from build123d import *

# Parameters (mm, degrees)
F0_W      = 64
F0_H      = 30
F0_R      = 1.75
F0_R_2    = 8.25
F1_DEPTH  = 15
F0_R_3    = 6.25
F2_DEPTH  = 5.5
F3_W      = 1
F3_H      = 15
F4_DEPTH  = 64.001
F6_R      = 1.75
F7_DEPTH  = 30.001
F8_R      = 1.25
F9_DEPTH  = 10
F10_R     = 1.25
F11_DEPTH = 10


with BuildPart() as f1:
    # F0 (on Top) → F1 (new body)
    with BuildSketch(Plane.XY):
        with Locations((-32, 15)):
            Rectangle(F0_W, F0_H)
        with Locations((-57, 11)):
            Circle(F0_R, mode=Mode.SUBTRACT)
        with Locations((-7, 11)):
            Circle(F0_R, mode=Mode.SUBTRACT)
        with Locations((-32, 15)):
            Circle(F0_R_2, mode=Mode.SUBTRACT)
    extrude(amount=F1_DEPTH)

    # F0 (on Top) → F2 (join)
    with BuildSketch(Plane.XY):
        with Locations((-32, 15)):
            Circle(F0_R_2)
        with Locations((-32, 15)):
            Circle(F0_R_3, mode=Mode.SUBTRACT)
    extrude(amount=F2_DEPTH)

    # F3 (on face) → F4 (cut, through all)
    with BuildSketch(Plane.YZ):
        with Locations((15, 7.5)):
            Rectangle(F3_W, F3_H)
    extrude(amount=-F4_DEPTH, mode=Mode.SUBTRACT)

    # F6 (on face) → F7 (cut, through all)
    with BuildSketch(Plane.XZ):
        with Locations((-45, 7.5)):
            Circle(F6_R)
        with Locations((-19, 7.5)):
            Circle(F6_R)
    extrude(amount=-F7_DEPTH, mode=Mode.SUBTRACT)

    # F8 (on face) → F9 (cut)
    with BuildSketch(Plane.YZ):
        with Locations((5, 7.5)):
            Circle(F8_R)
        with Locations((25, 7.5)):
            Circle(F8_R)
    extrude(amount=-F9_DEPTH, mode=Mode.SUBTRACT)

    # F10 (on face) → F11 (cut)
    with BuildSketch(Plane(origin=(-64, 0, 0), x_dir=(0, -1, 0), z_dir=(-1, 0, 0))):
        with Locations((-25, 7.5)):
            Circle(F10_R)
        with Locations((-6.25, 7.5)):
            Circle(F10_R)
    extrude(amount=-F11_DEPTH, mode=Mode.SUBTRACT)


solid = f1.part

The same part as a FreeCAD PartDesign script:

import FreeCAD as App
import Part
import Sketcher

V = App.Vector


def add_polygon(sketch, points):
    """Adds a closed chain of lines whose ends are joined by coincident constraints."""
    first, n = sketch.GeometryCount, len(points)
    for a, b in zip(points, points[1:] + points[:1]):
        sketch.addGeometry(Part.LineSegment(App.Vector(*a, 0), App.Vector(*b, 0)), False)
    for i in range(n):
        sketch.addConstraint(Sketcher.Constraint("Coincident", first + i, 2, first + (i + 1) % n, 1))

doc = App.newDocument("Part")
body = doc.addObject("PartDesign::Body", "Body")
body.AllowCompound = True

# Sketch on XY plane
sketch1 = body.newObject("Sketcher::SketchObject", "Sketch")
sketch1.AttachmentSupport = (doc.getObject("XY_Plane"), [""])
sketch1.MapMode = "FlatFace"
add_polygon(sketch1, [(-64, 30), (-64, 0), (0, 0), (0, 30)])  # lines 0-3
sketch1.addGeometry(Part.Circle(V(-57, 11, 0), V(0, 0, 1), 1.8), False)  # 4
sketch1.addGeometry(Part.Circle(V(-7, 11, 0), V(0, 0, 1), 1.8), False)  # 5
sketch1.addGeometry(Part.Circle(V(-32, 15, 0), V(0, 0, 1), 8.2), False)  # 6
sketch1.addConstraint(Sketcher.Constraint("Vertical", 0))
sketch1.addConstraint(Sketcher.Constraint("Horizontal", 1))
sketch1.addConstraint(Sketcher.Constraint("Vertical", 2))
sketch1.addConstraint(Sketcher.Constraint("Horizontal", 3))
sketch1.addConstraint(Sketcher.Constraint("Coincident", 1, 2, -1, 1))
sketch1.addConstraint(Sketcher.Constraint("Equal", 4, 5))
sketch1.addConstraint(Sketcher.Constraint("Horizontal", 4, 3, 5, 3))
sketch1.addConstraint(Sketcher.Constraint("Diameter", 4, 3.5))
sketch1.addConstraint(Sketcher.Constraint("Diameter", 6, 16.5))
sketch1.addConstraint(Sketcher.Constraint("DistanceX", 1, 1, 1, 2, 64.0))
sketch1.addConstraint(Sketcher.Constraint("DistanceY", 0, 2, 0, 1, 30.0))
sketch1.addConstraint(Sketcher.Constraint("DistanceX", 4, 3, -1, 1, 57.0))
sketch1.addConstraint(Sketcher.Constraint("DistanceY", -1, 1, 4, 3, 11.0))
sketch1.addConstraint(Sketcher.Constraint("DistanceX", 5, 3, -1, 1, 7.0))
sketch1.addConstraint(Sketcher.Constraint("DistanceX", 6, 3, -1, 1, 32.0))
sketch1.addConstraint(Sketcher.Constraint("DistanceY", -1, 1, 6, 3, 15.0))
pad1 = body.newObject("PartDesign::Pad", "Pad")
pad1.Profile = sketch1
pad1.Length = 15

# Sketch on XY plane
sketch2 = body.newObject("Sketcher::SketchObject", "Sketch001")
sketch2.AttachmentSupport = (doc.getObject("XY_Plane"), [""])
sketch2.MapMode = "FlatFace"
sketch2.addGeometry(Part.Circle(V(-32, 15, 0), V(0, 0, 1), 8), False)
sketch2.addGeometry(Part.Circle(V(-32, 15, 0), V(0, 0, 1), 6), False)
sketch2.addConstraint(Sketcher.Constraint("Coincident", 1, 3, 0, 3))
sketch2.addConstraint(Sketcher.Constraint("Diameter", 0, 16.5))
sketch2.addConstraint(Sketcher.Constraint("Diameter", 1, 12.5))
sketch2.addConstraint(Sketcher.Constraint("DistanceX", 0, 3, -1, 1, 32.0))
sketch2.addConstraint(Sketcher.Constraint("DistanceY", -1, 1, 0, 3, 15.0))
pad2 = body.newObject("PartDesign::Pad", "Pad001")
pad2.Profile = sketch2
pad2.Length = 5.5

# Sketch on YZ plane
sketch3 = body.newObject("Sketcher::SketchObject", "Sketch002")
sketch3.AttachmentSupport = (doc.getObject("YZ_Plane"), [""])
sketch3.MapMode = "FlatFace"
add_polygon(sketch3, [(14.5, 15), (14.5, 0), (15.5, 0), (15.5, 15)])  # lines 0-3
sketch3.addConstraint(Sketcher.Constraint("Vertical", 0))
sketch3.addConstraint(Sketcher.Constraint("Horizontal", 1))
sketch3.addConstraint(Sketcher.Constraint("Vertical", 2))
sketch3.addConstraint(Sketcher.Constraint("Horizontal", 3))
sketch3.addConstraint(Sketcher.Constraint("PointOnObject", 0, 2, -1))
sketch3.addConstraint(Sketcher.Constraint("DistanceX", 1, 1, 1, 2, 1.0))
sketch3.addConstraint(Sketcher.Constraint("DistanceY", 0, 2, 0, 1, 15.0))
sketch3.addConstraint(Sketcher.Constraint("DistanceX", -1, 1, 0, 2, 14.5))
pocket1 = body.newObject("PartDesign::Pocket", "Pocket")
pocket1.Profile = sketch3
pocket1.Type = "ThroughAll"

# Sketch on XZ plane
sketch4 = body.newObject("Sketcher::SketchObject", "Sketch003")
sketch4.AttachmentSupport = (doc.getObject("XZ_Plane"), [""])
sketch4.MapMode = "FlatFace"
sketch4.addGeometry(Part.Circle(V(-45, 7.5, 0), V(0, 0, 1), 1.8), False)
sketch4.addGeometry(Part.Circle(V(-19, 7.5, 0), V(0, 0, 1), 1.8), False)
sketch4.addConstraint(Sketcher.Constraint("Equal", 0, 1))
sketch4.addConstraint(Sketcher.Constraint("Horizontal", 0, 3, 1, 3))
sketch4.addConstraint(Sketcher.Constraint("Diameter", 0, 3.5))
sketch4.addConstraint(Sketcher.Constraint("DistanceX", 0, 3, -1, 1, 45.0))
sketch4.addConstraint(Sketcher.Constraint("DistanceX", 1, 3, -1, 1, 19.0))
sketch4.addConstraint(Sketcher.Constraint("DistanceY", -1, 1, 0, 3, 7.5))
pocket2 = body.newObject("PartDesign::Pocket", "Pocket001")
pocket2.Profile = sketch4
pocket2.Type = "ThroughAll"

# Sketch on YZ plane
sketch5 = body.newObject("Sketcher::SketchObject", "Sketch004")
sketch5.AttachmentSupport = (doc.getObject("YZ_Plane"), [""])
sketch5.MapMode = "FlatFace"
sketch5.addGeometry(Part.Circle(V(5, 7.5, 0), V(0, 0, 1), 1.2), False)
sketch5.addGeometry(Part.Circle(V(25, 7.5, 0), V(0, 0, 1), 1.2), False)
sketch5.addConstraint(Sketcher.Constraint("Equal", 0, 1))
sketch5.addConstraint(Sketcher.Constraint("Horizontal", 0, 3, 1, 3))
sketch5.addConstraint(Sketcher.Constraint("Diameter", 0, 2.5))
sketch5.addConstraint(Sketcher.Constraint("DistanceX", -1, 1, 0, 3, 5.0))
sketch5.addConstraint(Sketcher.Constraint("DistanceX", -1, 1, 1, 3, 25.0))
sketch5.addConstraint(Sketcher.Constraint("DistanceY", -1, 1, 0, 3, 7.5))
pocket3 = body.newObject("PartDesign::Pocket", "Pocket002")
pocket3.Profile = sketch5
pocket3.Length = 10

# Sketch on YZ plane
sketch6 = body.newObject("Sketcher::SketchObject", "Sketch005")
sketch6.AttachmentSupport = (doc.getObject("YZ_Plane"), [""])
sketch6.MapMode = "FlatFace"
sketch6.AttachmentOffset = App.Placement(V(0, 0, -64), App.Rotation())
sketch6.addGeometry(Part.Circle(V(25, 7.5, 0), V(0, 0, 1), 1.2), False)
sketch6.addGeometry(Part.Circle(V(6.2, 7.5, 0), V(0, 0, 1), 1.2), False)
sketch6.addConstraint(Sketcher.Constraint("Equal", 0, 1))
sketch6.addConstraint(Sketcher.Constraint("Horizontal", 0, 3, 1, 3))
sketch6.addConstraint(Sketcher.Constraint("Diameter", 0, 2.5))
sketch6.addConstraint(Sketcher.Constraint("DistanceX", -1, 1, 0, 3, 25.0))
sketch6.addConstraint(Sketcher.Constraint("DistanceY", -1, 1, 0, 3, 7.5))
sketch6.addConstraint(Sketcher.Constraint("DistanceX", -1, 1, 1, 3, 6.25))
pocket4 = body.newObject("PartDesign::Pocket", "Pocket003")
pocket4.Profile = sketch6
pocket4.Length = 10
pocket4.Reversed = True

doc.recompute()
